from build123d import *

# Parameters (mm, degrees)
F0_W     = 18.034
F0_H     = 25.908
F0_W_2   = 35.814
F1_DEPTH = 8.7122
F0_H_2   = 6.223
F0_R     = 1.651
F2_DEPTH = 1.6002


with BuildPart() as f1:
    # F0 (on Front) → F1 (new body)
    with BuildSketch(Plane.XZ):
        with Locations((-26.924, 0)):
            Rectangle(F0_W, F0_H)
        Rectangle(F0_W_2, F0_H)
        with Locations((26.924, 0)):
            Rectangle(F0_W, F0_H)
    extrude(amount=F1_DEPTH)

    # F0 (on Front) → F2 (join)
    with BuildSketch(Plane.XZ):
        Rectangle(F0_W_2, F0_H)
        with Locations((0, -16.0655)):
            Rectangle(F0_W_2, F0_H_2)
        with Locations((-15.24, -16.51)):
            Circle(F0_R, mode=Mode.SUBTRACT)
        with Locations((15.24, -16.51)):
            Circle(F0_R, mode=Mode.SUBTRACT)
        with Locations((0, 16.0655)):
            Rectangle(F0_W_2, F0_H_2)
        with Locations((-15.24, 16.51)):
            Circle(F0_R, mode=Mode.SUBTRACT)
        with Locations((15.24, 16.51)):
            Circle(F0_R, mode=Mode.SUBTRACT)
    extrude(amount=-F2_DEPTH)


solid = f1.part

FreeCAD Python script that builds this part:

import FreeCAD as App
import Part
import Sketcher

V = App.Vector
Q = App.Units.Quantity


def add_polygon(sketch, points):
    """Adds a closed chain of lines whose ends are joined by coincident constraints."""
    first, n = sketch.GeometryCount, len(points)
    for a, b in zip(points, points[1:] + points[:1]):
        sketch.addGeometry(Part.LineSegment(App.Vector(*a, 0), App.Vector(*b, 0)), False)
    for i in range(n):
        sketch.addConstraint(Sketcher.Constraint("Coincident", first + i, 2, first + (i + 1) % n, 1))

doc = App.newDocument("Part")
body = doc.addObject("PartDesign::Body", "Body")

# Sketch on XZ plane
sketch1 = body.newObject("Sketcher::SketchObject", "Sketch")
sketch1.AttachmentSupport = (doc.getObject("XZ_Plane"), [""])
sketch1.MapMode = "FlatFace"
add_polygon(sketch1, [(-36, 13), (-36, -13), (36, -13), (36, 13)])  # lines 0-3
sketch1.addConstraint([
    Sketcher.Constraint("Vertical", 0),
    Sketcher.Constraint("Horizontal", 1),
    Sketcher.Constraint("Vertical", 2),
    Sketcher.Constraint("Horizontal", 3),
    Sketcher.Constraint("Symmetric", 0, 2, 2, 2, -1, 1),
    Sketcher.Constraint("DistanceX", 1, 1, 1, 2, Q("2.83 in")),
    Sketcher.Constraint("DistanceY", 0, 2, 0, 1, Q("1.02 in")),
])
pad1 = body.newObject("PartDesign::Pad", "Pad")
pad1.Profile = sketch1
pad1.Length = Q("0.343 in")

# Sketch on XZ plane
sketch2 = body.newObject("Sketcher::SketchObject", "Sketch001")
sketch2.AttachmentSupport = (doc.getObject("XZ_Plane"), [""])
sketch2.MapMode = "FlatFace"
add_polygon(sketch2, [(-17.9, -19.2), (17.9, -19.2), (17.9, 19.2), (-17.9, 19.2)])  # lines 0-3
sketch2.addGeometry(Part.Circle(V(-15.2, -16.5, 0), V(0, 0, 1), 1.7), False)  # 4
sketch2.addGeometry(Part.Circle(V(15.2, -16.5, 0), V(0, 0, 1), 1.7), False)  # 5
sketch2.addGeometry(Part.Circle(V(-15.2, 16.5, 0), V(0, 0, 1), 1.7), False)  # 6
sketch2.addGeometry(Part.Circle(V(15.2, 16.5, 0), V(0, 0, 1), 1.7), False)  # 7
sketch2.addConstraint([
    Sketcher.Constraint("Horizontal", 0),
    Sketcher.Constraint("Vertical", 1),
    Sketcher.Constraint("Horizontal", 2),
    Sketcher.Constraint("Vertical", 3),
    Sketcher.Constraint("Equal", 4, 5),
    Sketcher.Constraint("Equal", 5, 6),
    Sketcher.Constraint("Equal", 6, 7),
    Sketcher.Constraint("Symmetric", 5, 3, 6, 3, -1, 1),
    Sketcher.Constraint("Symmetric", 4, 3, 7, 3, -1, 1),
    Sketcher.Constraint("Symmetric", 0, 2, 2, 2, -1, 1),
    Sketcher.Constraint("Symmetric", 4, 3, 5, 3, -2),
    Sketcher.Constraint("Diameter", 4, Q("0.13 in")),
    Sketcher.Constraint("DistanceX", 0, 1, 0, 2, Q("1.41 in")),
    Sketcher.Constraint("DistanceY", 1, 1, 1, 2, Q("1.51 in")),
    Sketcher.Constraint("DistanceX", 4, 3, -1, 1, Q("0.6 in")),
    Sketcher.Constraint("DistanceY", 4, 3, 6, 3, Q("1.3 in")),
])
pad2 = body.newObject("PartDesign::Pad", "Pad001")
pad2.Profile = sketch2
pad2.Length = Q("0.063 in")
pad2.Reversed = True

doc.recompute()
